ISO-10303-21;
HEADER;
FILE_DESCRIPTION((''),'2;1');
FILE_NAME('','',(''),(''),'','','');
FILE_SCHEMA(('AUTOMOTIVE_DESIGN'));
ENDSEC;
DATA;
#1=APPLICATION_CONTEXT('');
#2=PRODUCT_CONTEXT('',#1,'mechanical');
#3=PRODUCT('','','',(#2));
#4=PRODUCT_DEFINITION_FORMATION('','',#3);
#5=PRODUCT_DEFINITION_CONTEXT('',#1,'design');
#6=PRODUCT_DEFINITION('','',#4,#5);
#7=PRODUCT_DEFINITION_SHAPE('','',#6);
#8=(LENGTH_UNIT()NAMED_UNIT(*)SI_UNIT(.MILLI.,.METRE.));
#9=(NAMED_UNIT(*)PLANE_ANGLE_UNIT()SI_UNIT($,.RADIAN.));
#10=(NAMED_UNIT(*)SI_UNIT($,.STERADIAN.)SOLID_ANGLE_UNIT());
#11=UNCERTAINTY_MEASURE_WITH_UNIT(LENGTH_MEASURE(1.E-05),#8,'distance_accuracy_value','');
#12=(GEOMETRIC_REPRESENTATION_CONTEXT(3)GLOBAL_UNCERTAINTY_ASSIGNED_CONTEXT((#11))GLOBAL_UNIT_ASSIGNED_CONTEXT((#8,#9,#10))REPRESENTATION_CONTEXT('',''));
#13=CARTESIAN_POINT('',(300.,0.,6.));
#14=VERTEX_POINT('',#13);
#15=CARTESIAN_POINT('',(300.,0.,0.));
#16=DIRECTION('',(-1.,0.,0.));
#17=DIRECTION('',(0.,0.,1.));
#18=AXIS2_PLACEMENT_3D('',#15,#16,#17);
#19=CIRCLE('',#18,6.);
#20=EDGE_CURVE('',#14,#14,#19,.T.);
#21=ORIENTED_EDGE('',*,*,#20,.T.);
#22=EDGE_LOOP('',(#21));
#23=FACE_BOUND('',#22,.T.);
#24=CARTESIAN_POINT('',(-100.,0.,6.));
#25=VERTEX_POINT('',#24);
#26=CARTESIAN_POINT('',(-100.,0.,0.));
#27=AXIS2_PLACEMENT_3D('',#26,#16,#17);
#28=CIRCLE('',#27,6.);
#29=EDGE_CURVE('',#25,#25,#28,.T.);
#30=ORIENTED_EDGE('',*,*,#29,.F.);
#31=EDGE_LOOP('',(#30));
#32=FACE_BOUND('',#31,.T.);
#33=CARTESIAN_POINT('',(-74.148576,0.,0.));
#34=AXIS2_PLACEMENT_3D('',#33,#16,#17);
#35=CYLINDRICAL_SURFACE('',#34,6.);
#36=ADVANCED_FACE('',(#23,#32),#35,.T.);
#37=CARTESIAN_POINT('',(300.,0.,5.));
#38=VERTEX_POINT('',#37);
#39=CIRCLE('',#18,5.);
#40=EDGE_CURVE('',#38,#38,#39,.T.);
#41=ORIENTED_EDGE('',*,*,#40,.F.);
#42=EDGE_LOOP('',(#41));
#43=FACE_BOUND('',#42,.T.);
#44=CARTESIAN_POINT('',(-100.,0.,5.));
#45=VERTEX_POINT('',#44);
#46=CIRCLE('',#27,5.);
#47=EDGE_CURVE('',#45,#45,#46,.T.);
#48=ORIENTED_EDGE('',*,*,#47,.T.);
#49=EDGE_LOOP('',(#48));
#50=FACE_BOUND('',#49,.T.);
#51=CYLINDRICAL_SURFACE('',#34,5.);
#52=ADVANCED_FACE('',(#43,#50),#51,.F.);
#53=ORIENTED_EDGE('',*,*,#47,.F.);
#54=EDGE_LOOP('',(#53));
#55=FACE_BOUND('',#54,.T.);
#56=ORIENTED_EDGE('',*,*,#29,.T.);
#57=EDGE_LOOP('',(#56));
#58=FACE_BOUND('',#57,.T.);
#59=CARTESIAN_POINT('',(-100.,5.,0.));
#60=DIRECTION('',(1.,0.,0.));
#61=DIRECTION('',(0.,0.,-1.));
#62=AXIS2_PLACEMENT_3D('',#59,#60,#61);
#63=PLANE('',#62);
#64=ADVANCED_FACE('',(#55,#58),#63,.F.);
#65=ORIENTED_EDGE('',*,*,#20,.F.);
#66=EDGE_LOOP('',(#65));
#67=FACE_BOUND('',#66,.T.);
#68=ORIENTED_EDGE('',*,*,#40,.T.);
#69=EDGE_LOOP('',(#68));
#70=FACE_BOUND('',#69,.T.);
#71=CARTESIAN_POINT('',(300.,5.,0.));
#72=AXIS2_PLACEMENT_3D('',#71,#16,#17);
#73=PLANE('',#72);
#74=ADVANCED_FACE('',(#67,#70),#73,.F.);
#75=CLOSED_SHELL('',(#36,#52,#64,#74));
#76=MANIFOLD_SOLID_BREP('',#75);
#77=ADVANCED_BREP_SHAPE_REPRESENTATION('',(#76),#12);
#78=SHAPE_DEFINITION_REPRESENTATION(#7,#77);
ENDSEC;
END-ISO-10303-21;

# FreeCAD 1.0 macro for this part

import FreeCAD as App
import Part
import Sketcher
Q = App.Units.Quantity


def add_polygon(sketch, points):
    """Adds a closed chain of lines whose ends are joined by coincident constraints."""
    first, n = sketch.GeometryCount, len(points)
    for a, b in zip(points, points[1:] + points[:1]):
        sketch.addGeometry(Part.LineSegment(App.Vector(*a, 0), App.Vector(*b, 0)), False)
    for i in range(n):
        sketch.addConstraint(Sketcher.Constraint("Coincident", first + i, 2, first + (i + 1) % n, 1))

doc = App.newDocument("Part")
body = doc.addObject("PartDesign::Body", "Body")

# Sketch on XY plane
sketch1 = body.newObject("Sketcher::SketchObject", "Sketch")
sketch1.AttachmentSupport = (doc.getObject("XY_Plane"), [""])
sketch1.MapMode = "FlatFace"
add_polygon(sketch1, [(-100, 6), (-100, 5), (300, 5), (300, 6)])  # lines 0-3
sketch1.addConstraint([
    Sketcher.Constraint("Vertical", 0),
    Sketcher.Constraint("Horizontal", 1),
    Sketcher.Constraint("Vertical", 2),
    Sketcher.Constraint("Horizontal", 3),
    Sketcher.Constraint("DistanceX", 1, 1, 1, 2, Q("400 mm")),
    Sketcher.Constraint("DistanceY", 0, 2, 0, 1, Q("1 mm")),
    Sketcher.Constraint("DistanceX", 0, 2, -1, 1, Q("100 mm")),
    Sketcher.Constraint("DistanceY", -1, 1, 0, 2, Q("5 mm")),
])
revolution = body.newObject("PartDesign::Revolution", "Revolution")
revolution.Profile = sketch1
revolution.ReferenceAxis = (sketch1, ["H_Axis"])
revolution.Angle = 360

doc.recompute()
